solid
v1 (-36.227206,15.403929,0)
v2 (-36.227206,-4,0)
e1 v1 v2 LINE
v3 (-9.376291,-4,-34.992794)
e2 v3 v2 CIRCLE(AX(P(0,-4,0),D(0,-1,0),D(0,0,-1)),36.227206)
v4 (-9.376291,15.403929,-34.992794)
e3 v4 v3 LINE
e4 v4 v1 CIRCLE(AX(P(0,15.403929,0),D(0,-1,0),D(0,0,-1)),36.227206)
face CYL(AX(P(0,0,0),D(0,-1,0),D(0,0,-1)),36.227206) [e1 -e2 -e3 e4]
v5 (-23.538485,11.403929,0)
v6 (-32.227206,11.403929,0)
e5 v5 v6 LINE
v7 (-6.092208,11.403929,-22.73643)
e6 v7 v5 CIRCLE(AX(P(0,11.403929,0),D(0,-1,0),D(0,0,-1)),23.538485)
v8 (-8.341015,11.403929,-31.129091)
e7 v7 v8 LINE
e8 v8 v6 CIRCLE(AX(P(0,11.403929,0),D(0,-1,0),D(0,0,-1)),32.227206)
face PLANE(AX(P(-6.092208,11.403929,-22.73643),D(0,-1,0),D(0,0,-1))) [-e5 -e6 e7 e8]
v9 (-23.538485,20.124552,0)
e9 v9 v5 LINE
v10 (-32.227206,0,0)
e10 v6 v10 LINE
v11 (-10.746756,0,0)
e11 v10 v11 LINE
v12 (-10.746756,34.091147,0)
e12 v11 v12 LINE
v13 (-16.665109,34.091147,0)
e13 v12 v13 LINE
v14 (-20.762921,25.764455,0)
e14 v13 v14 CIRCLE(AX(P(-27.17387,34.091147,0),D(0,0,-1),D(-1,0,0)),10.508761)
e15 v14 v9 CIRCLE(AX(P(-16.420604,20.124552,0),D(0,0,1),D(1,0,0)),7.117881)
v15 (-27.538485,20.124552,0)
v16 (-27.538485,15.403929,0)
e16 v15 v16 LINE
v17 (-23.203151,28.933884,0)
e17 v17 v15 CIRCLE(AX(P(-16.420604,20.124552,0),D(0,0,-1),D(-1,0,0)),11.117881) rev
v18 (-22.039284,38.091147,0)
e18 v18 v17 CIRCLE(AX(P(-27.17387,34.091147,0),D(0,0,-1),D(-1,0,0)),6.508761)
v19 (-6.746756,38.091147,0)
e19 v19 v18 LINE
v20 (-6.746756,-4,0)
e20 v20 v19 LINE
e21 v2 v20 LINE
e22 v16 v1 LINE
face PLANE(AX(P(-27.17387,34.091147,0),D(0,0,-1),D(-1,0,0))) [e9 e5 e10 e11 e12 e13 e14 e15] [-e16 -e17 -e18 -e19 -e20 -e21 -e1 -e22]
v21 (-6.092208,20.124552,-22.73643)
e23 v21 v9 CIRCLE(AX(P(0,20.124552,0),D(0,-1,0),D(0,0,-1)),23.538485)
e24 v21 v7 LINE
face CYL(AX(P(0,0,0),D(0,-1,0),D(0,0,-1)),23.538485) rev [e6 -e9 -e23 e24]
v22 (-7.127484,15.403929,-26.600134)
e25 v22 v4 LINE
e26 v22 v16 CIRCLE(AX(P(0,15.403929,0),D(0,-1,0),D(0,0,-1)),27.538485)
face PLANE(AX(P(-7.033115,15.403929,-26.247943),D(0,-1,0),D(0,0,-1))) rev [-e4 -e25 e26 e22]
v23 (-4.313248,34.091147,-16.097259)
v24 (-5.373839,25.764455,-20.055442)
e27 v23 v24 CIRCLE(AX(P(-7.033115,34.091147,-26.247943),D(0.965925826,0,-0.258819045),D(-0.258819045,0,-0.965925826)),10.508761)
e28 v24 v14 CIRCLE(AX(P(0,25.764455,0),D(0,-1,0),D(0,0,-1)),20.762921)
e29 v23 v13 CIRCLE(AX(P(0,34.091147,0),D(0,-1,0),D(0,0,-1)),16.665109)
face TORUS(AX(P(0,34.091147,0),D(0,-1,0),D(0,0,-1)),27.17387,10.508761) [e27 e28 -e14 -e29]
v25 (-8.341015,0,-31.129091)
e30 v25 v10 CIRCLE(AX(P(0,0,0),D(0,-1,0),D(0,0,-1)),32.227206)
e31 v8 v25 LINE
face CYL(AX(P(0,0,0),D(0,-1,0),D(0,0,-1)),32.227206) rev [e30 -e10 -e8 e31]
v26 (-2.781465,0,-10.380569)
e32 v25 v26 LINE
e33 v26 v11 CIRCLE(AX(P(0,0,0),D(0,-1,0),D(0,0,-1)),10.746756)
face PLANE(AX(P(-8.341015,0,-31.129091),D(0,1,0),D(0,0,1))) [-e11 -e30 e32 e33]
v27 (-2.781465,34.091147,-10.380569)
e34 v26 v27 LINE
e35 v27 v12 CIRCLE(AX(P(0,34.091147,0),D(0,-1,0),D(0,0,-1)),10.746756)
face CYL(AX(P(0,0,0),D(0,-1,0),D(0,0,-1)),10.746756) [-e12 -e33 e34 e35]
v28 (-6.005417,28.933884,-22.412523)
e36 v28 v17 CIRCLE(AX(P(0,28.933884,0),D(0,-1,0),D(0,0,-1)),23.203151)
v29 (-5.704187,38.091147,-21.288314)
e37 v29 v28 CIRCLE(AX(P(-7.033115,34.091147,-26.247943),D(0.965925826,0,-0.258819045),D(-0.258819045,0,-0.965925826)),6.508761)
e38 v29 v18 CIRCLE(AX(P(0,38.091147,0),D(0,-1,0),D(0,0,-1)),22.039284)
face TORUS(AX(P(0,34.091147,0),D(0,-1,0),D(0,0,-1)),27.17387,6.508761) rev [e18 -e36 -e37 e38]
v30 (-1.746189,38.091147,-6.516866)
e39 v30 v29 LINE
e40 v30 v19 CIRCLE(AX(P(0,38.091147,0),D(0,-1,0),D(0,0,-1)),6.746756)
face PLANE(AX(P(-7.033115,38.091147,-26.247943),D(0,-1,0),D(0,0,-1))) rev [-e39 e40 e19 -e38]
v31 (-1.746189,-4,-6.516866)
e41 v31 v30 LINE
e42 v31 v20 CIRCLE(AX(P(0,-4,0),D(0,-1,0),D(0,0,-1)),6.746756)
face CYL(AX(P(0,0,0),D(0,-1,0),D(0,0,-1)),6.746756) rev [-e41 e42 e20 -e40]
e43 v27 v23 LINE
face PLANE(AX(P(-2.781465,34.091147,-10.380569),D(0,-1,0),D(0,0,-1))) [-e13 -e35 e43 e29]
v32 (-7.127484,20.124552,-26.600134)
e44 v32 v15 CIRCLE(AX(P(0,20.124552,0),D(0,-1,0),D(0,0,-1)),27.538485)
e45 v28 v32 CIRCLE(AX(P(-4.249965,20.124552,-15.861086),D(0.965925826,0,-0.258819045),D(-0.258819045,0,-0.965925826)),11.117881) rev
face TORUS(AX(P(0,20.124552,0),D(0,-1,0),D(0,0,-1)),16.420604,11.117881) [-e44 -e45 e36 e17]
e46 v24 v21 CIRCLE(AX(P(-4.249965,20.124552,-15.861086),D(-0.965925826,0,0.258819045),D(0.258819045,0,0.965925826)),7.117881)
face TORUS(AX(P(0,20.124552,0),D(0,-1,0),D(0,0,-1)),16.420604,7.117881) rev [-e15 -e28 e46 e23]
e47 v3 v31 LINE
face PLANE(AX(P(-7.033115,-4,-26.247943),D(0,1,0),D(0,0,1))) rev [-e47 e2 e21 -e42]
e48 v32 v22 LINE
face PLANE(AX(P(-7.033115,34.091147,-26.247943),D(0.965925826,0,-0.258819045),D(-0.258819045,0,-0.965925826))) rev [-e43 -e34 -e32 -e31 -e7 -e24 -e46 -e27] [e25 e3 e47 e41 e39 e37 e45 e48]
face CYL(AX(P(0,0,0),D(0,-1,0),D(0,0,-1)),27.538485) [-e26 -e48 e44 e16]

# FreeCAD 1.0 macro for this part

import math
import FreeCAD as App
import Part
import Sketcher

V = App.Vector
Q = App.Units.Quantity

doc = App.newDocument("Part")
params = doc.addObject("Spreadsheet::Sheet", "Params")
for row, (alias, value) in enumerate([
    ("revolution_angle", "285 deg"),
], start=1):
    params.set(f"A{row}", alias)
    params.set(f"B{row}", "=" + value)
    params.setAlias(f"B{row}", alias)

body = doc.addObject("PartDesign::Body", "Body")

sketch1 = body.newObject("Sketcher::SketchObject", "Sketch")
sketch1.AttachmentSupport = (doc.getObject("XY_Plane"), [""])
sketch1.MapMode = "FlatFace"
sketch1.addGeometry([
    Part.LineSegment(V(-27.5, 20.1, 0), V(-27.5, 15.4, 0)),
    Part.LineSegment(V(-27.5, 15.4, 0), V(-36.2, 15.4, 0)),
    Part.LineSegment(V(-36.2, 15.4, 0), V(-36.2, -4, 0)),
    Part.LineSegment(V(-36.2, -4, 0), V(-6.7, -4, 0)),
    Part.LineSegment(V(-6.7, -4, 0), V(-6.7, 38.1, 0)),
    Part.LineSegment(V(-6.7, 38.1, 0), V(-22, 38.1, 0)),
    Part.ArcOfCircle(Part.Circle(V(-27.2, 34.1, 0), V(0, 0, 1), 6.5), math.radians(-52), math.radians(38)),
    Part.ArcOfCircle(Part.Circle(V(-16.4, 20.1, 0), V(0, 0, 1), 11.1), math.radians(128), math.radians(180)),
    Part.LineSegment(V(-23.5, 11.4, 0), V(-23.5, 20.1, 0)),
    Part.ArcOfCircle(Part.Circle(V(-16.4, 20.1, 0), V(0, 0, 1), 7.1), math.radians(128), math.radians(180)),
    Part.ArcOfCircle(Part.Circle(V(-27.2, 34.1, 0), V(0, 0, 1), 10.5), math.radians(-52), math.radians(0)),
    Part.LineSegment(V(-16.7, 34.1, 0), V(-10.7, 34.1, 0)),
    Part.LineSegment(V(-10.7, 34.1, 0), V(-10.7, 0, 0)),
    Part.LineSegment(V(-10.7, 0, 0), V(-32.2, 0, 0)),
    Part.LineSegment(V(-32.2, 0, 0), V(-32.2, 11.4, 0)),
    Part.LineSegment(V(-32.2, 11.4, 0), V(-23.5, 11.4, 0)),
], False)
sketch1.addConstraint([
    Sketcher.Constraint("Coincident", 0, 2, 1, 1),
    Sketcher.Constraint("Coincident", 1, 2, 2, 1),
    Sketcher.Constraint("Coincident", 2, 2, 3, 1),
    Sketcher.Constraint("Coincident", 3, 2, 4, 1),
    Sketcher.Constraint("Coincident", 4, 2, 5, 1),
    Sketcher.Constraint("Coincident", 5, 2, 6, 2),
    Sketcher.Constraint("Tangent", 6, 1, 7, 1),
    Sketcher.Constraint("Tangent", 7, 2, 0, 1),
    Sketcher.Constraint("Tangent", 8, 2, 9, 2),
    Sketcher.Constraint("Tangent", 9, 1, 10, 1),
    Sketcher.Constraint("Coincident", 10, 2, 11, 1),
    Sketcher.Constraint("Coincident", 11, 2, 12, 1),
    Sketcher.Constraint("Coincident", 12, 2, 13, 1),
    Sketcher.Constraint("Coincident", 13, 2, 14, 1),
    Sketcher.Constraint("Coincident", 14, 2, 15, 1),
    Sketcher.Constraint("Coincident", 15, 2, 8, 1),
    Sketcher.Constraint("Vertical", 0),
    Sketcher.Constraint("Horizontal", 1),
    Sketcher.Constraint("Vertical", 2),
    Sketcher.Constraint("Horizontal", 3),
    Sketcher.Constraint("Vertical", 4),
    Sketcher.Constraint("Horizontal", 5),
    Sketcher.Constraint("Vertical", 8),
    Sketcher.Constraint("Horizontal", 11),
    Sketcher.Constraint("Vertical", 12),
    Sketcher.Constraint("Horizontal", 13),
    Sketcher.Constraint("Vertical", 14),
    Sketcher.Constraint("Horizontal", 15),
    Sketcher.Constraint("Coincident", 9, 3, 7, 3),
    Sketcher.Constraint("Coincident", 10, 3, 6, 3),
    Sketcher.Constraint("PointOnObject", 12, 2, -1),
    Sketcher.Constraint("Horizontal", 6, 3, 10, 2),
    Sketcher.Constraint("Equal", 1, 15),
    Sketcher.Constraint("DistanceY", 2, 2, -1, 1, Q("4 mm")),
    Sketcher.Constraint("DistanceY", 6, 3, 4, 2, Q("4 mm")),
    Sketcher.Constraint("DistanceX", 7, 2, 8, 2, Q("4 mm")),
    Sketcher.Constraint("DistanceX", 11, 2, 4, 2, Q("4 mm")),
    Sketcher.Constraint("DistanceY", 14, 2, 1, 2, Q("4 mm")),
    Sketcher.Constraint("Radius", 6, Q("6.508761 mm")),
    Sketcher.Constraint("Radius", 7, Q("11.117881 mm")),
    Sketcher.Constraint("DistanceX", 1, 2, 1, 1, Q("8.688721 mm")),
    Sketcher.Constraint("DistanceX", 3, 1, 3, 2, Q("29.48045 mm")),
    Sketcher.Constraint("DistanceX", 5, 2, 5, 1, Q("15.292528 mm")),
    Sketcher.Constraint("DistanceY", 2, 2, 2, 1, Q("19.403929 mm")),
    Sketcher.Constraint("DistanceY", 0, 2, 0, 1, Q("4.720622 mm")),
    Sketcher.Constraint("DistanceX", 6, 3, -1, 1, Q("27.17387 mm")),
])
revolution = body.newObject("PartDesign::Revolution", "Revolution")
revolution.Profile = sketch1
revolution.ReferenceAxis = (sketch1, ["V_Axis"])
revolution.setExpression("Angle", "Params.revolution_angle")

doc.recompute()
